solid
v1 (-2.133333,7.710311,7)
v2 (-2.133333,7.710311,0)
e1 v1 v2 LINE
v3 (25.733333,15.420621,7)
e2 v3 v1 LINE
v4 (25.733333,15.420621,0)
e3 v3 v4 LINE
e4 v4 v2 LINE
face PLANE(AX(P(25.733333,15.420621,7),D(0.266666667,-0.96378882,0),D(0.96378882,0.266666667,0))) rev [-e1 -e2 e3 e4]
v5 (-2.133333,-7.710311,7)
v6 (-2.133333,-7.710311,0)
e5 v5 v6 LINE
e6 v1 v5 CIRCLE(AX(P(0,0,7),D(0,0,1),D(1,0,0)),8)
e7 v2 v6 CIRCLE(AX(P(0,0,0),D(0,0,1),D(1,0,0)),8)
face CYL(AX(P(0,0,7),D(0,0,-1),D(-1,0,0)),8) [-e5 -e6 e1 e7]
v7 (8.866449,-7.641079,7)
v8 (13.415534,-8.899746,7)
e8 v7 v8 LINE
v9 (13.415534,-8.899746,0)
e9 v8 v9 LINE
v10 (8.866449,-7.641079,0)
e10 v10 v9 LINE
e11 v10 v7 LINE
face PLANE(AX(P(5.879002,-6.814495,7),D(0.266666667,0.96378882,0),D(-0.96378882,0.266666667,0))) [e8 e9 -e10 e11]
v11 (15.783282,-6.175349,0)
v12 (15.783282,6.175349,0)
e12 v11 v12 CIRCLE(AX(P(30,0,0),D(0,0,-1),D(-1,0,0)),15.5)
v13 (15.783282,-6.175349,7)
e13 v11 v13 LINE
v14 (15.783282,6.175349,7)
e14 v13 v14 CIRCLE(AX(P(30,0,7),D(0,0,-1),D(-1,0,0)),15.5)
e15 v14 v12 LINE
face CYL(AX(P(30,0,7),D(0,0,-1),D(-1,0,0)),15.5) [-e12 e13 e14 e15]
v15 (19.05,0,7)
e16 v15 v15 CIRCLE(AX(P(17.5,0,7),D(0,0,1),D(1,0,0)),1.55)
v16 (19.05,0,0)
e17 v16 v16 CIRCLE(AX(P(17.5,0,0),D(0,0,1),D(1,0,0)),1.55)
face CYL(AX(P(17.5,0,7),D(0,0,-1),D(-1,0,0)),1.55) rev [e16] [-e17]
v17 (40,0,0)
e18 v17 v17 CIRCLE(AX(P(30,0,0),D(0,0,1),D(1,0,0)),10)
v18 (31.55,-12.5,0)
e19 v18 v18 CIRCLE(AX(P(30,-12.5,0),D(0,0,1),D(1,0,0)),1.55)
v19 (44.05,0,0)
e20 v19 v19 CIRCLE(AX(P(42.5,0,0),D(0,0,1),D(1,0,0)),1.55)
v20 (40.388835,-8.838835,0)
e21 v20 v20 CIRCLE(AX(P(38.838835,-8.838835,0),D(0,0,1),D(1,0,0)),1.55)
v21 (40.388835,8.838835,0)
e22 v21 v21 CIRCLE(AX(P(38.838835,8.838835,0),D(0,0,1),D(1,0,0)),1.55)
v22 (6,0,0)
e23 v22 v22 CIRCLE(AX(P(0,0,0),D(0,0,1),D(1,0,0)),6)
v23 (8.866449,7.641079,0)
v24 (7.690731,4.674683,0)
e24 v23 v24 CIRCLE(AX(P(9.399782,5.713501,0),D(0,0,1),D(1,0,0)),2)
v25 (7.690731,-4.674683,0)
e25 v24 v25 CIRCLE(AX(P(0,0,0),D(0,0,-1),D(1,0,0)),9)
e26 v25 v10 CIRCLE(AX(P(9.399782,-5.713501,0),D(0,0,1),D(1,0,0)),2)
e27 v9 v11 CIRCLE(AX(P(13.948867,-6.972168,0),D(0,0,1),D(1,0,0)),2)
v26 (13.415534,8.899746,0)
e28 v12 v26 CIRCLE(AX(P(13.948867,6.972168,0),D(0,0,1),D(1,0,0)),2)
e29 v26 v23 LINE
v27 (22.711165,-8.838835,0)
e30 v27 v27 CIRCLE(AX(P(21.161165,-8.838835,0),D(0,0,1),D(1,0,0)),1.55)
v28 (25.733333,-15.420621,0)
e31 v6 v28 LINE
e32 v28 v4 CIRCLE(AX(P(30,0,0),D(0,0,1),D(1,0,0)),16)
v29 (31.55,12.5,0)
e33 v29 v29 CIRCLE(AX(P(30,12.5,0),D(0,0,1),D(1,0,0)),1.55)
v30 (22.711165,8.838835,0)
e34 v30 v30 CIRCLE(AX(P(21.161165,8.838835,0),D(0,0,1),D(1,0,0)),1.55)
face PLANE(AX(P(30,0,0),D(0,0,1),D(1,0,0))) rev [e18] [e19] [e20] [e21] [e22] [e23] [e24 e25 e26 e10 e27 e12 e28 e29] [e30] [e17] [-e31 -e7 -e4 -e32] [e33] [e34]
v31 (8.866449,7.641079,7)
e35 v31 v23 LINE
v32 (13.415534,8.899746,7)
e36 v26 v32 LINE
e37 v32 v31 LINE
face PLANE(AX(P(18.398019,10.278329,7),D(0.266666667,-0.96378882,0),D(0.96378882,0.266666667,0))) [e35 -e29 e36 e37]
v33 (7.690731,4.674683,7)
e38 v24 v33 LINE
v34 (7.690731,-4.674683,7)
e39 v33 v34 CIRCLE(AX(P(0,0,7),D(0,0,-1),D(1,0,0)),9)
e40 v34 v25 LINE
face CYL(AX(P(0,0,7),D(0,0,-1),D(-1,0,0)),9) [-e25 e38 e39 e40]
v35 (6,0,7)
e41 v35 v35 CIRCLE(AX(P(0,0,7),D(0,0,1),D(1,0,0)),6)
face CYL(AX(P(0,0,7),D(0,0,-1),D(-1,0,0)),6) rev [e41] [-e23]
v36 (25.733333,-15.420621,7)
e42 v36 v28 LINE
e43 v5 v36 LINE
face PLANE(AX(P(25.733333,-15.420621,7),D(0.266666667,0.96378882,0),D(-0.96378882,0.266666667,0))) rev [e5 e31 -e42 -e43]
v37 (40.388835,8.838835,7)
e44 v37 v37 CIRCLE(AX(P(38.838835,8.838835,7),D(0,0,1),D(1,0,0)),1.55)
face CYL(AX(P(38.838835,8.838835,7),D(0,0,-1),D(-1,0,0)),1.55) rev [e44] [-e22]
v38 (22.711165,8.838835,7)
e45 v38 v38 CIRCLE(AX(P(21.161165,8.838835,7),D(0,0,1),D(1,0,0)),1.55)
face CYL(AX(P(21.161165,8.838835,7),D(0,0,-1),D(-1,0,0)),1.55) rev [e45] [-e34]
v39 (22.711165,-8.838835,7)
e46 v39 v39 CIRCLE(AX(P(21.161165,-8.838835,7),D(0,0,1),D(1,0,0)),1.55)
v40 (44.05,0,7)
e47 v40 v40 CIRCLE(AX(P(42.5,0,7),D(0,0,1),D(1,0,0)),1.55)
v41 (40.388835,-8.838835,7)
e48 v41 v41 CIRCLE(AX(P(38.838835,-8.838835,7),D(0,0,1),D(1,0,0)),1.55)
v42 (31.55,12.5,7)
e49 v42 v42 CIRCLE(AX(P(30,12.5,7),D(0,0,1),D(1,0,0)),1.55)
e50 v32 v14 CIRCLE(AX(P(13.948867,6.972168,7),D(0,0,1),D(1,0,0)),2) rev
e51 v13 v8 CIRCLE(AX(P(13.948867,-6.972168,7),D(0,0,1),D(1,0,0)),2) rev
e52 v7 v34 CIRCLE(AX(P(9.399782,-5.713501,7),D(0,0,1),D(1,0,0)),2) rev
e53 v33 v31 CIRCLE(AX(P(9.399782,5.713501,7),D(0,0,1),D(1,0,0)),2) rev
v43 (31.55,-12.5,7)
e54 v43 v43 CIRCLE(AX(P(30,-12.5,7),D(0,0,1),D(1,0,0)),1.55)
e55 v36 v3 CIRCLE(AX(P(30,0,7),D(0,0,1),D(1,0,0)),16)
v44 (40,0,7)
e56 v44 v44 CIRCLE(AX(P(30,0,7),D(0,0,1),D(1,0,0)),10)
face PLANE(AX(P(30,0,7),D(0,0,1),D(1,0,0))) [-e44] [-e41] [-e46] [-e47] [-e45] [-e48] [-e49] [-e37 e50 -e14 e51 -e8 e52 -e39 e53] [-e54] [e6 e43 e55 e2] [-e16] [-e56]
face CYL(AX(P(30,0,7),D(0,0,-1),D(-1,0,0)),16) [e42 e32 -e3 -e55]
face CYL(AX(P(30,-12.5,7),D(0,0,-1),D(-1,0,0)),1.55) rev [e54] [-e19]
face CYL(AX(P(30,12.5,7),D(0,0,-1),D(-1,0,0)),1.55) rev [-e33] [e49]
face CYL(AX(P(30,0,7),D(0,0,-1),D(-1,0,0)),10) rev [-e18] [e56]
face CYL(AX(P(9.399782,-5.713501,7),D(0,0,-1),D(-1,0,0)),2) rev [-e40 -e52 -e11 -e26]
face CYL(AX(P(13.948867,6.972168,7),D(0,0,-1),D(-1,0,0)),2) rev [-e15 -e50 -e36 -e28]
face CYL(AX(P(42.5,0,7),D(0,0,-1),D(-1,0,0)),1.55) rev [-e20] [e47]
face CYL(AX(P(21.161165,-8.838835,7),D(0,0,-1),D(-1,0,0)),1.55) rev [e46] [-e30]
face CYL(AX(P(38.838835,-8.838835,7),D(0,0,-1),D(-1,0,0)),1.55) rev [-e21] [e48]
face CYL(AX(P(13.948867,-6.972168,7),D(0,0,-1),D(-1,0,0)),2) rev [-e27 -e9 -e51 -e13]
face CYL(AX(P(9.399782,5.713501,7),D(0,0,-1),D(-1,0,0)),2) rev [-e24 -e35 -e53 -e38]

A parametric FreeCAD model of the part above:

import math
import FreeCAD as App
import Part
import Sketcher
from FreeCAD import Vector


def edges_at(feature, points):
    """Names of the edges that pass closest to the given points."""
    edges = feature.Shape.Edges
    near = lambda p: min(range(len(edges)), key=lambda i: edges[i].distToShape(Part.Vertex(*p))[0])
    return sorted({f"Edge{near(p) + 1}" for p in points})

doc = App.newDocument("Part")
body = doc.addObject("PartDesign::Body", "Body")

# Sketch on XY plane
sketch1 = doc.addObject("Sketcher::SketchObject", "Sketch")
body.addObject(sketch1)
sketch1.AttachmentSupport = (doc.XY_Plane, [""])
sketch1.MapMode = "FlatFace"
sketch1.addGeometry(Part.LineSegment(Vector(-2.133333, -7.710311, 0), Vector(25.733333, -15.420621, 0)), False)
sketch1.addGeometry(Part.ArcOfCircle(Part.Circle(Vector(30, 0, 0), Vector(0, 0, 1), 16), math.radians(-105.46601), math.radians(105.46601)), False)
sketch1.addGeometry(Part.LineSegment(Vector(25.733333, 15.420621, 0), Vector(-2.133333, 7.710311, 0)), False)
sketch1.addGeometry(Part.ArcOfCircle(Part.Circle(Vector(0, 0, 0), Vector(0, 0, 1), 8), math.radians(105.46601), math.radians(254.53399)), False)
sketch1.addGeometry(Part.Circle(Vector(38.838835, -8.838835, 0), Vector(0, 0, 1), 1.55), False)
sketch1.addGeometry(Part.Circle(Vector(30, -12.5, 0), Vector(0, 0, 1), 1.55), False)
sketch1.addGeometry(Part.Circle(Vector(21.161165, -8.838835, 0), Vector(0, 0, 1), 1.55), False)
sketch1.addGeometry(Part.Circle(Vector(42.5, 0, 0), Vector(0, 0, 1), 1.55), False)
sketch1.addGeometry(Part.Circle(Vector(30, 0, 0), Vector(0, 0, 1), 10), False)
sketch1.addGeometry(Part.Circle(Vector(38.838835, 8.838835, 0), Vector(0, 0, 1), 1.55), False)
sketch1.addGeometry(Part.Circle(Vector(21.161165, 8.838835, 0), Vector(0, 0, 1), 1.55), False)
sketch1.addGeometry(Part.Circle(Vector(30, 12.5, 0), Vector(0, 0, 1), 1.55), False)
sketch1.addGeometry(Part.Circle(Vector(17.5, 0, 0), Vector(0, 0, 1), 1.55), False)
sketch1.addGeometry(Part.ArcOfCircle(Part.Circle(Vector(0, 0, 0), Vector(0, 0, 1), 9), math.radians(-49.214999), math.radians(49.214999)), False)
sketch1.addGeometry(Part.LineSegment(Vector(5.879002, 6.814495, 0), Vector(18.398019, 10.278329, 0)), False)
sketch1.addGeometry(Part.ArcOfCircle(Part.Circle(Vector(30, 0, 0), Vector(0, 0, 1), 15.5), math.radians(138.461895), math.radians(221.538105)), False)
sketch1.addGeometry(Part.LineSegment(Vector(18.398019, -10.278329, 0), Vector(5.879002, -6.814495, 0)), False)
sketch1.addGeometry(Part.Circle(Vector(0, 0, 0), Vector(0, 0, 1), 6), False)
sketch1.addConstraint(Sketcher.Constraint("Tangent", 0, 2, 1, 1))
sketch1.addConstraint(Sketcher.Constraint("Tangent", 1, 2, 2, 1))
sketch1.addConstraint(Sketcher.Constraint("Tangent", 2, 2, 3, 1))
sketch1.addConstraint(Sketcher.Constraint("Tangent", 3, 2, 0, 1))
sketch1.addConstraint(Sketcher.Constraint("Coincident", 13, 2, 14, 1))
sketch1.addConstraint(Sketcher.Constraint("Coincident", 14, 2, 15, 1))
sketch1.addConstraint(Sketcher.Constraint("Coincident", 15, 2, 16, 1))
sketch1.addConstraint(Sketcher.Constraint("Coincident", 16, 2, 13, 1))
sketch1.addConstraint(Sketcher.Constraint("Coincident", 3, 3, -1, 1))
sketch1.addConstraint(Sketcher.Constraint("Coincident", 13, 3, -1, 1))
sketch1.addConstraint(Sketcher.Constraint("Coincident", 17, 3, -1, 1))
sketch1.addConstraint(Sketcher.Constraint("Coincident", 8, 3, 1, 3))
sketch1.addConstraint(Sketcher.Constraint("Coincident", 15, 3, 1, 3))
sketch1.addConstraint(Sketcher.Constraint("Equal", 4, 5))
sketch1.addConstraint(Sketcher.Constraint("Equal", 5, 6))
sketch1.addConstraint(Sketcher.Constraint("Equal", 6, 7))
sketch1.addConstraint(Sketcher.Constraint("Equal", 7, 9))
sketch1.addConstraint(Sketcher.Constraint("Equal", 9, 10))
sketch1.addConstraint(Sketcher.Constraint("Equal", 10, 11))
sketch1.addConstraint(Sketcher.Constraint("Equal", 11, 12))
sketch1.addConstraint(Sketcher.Constraint("Symmetric", 4, 3, 9, 3, -1))
sketch1.addConstraint(Sketcher.Constraint("Symmetric", 6, 3, 10, 3, -1))
sketch1.addConstraint(Sketcher.Constraint("Symmetric", 5, 3, 11, 3, -1))
sketch1.addConstraint(Sketcher.Constraint("Symmetric", 14, 2, 15, 2, -1))
sketch1.addConstraint(Sketcher.Constraint("PointOnObject", 7, 3, -1))
sketch1.addConstraint(Sketcher.Constraint("PointOnObject", 12, 3, -1))
sketch1.addConstraint(Sketcher.Constraint("Parallel", 2, 14))
sketch1.addConstraint(Sketcher.Constraint("Parallel", 0, 16))
sketch1.addConstraint(Sketcher.Constraint("Horizontal", 4, 3, 6, 3))
sketch1.addConstraint(Sketcher.Constraint("Vertical", 1, 3, 5, 3))
sketch1.addConstraint(Sketcher.Constraint("Diameter", 8, 20.0))
sketch1.addConstraint(Sketcher.Constraint("Diameter", 17, 12.0))
sketch1.addConstraint(Sketcher.Constraint("Radius", 1, 16.0))
sketch1.addConstraint(Sketcher.Constraint("Radius", 3, 8.0))
sketch1.addConstraint(Sketcher.Constraint("Radius", 13, 9.0))
sketch1.addConstraint(Sketcher.Constraint("Diameter", 4, 3.1))
sketch1.addConstraint(Sketcher.Constraint("Radius", 15, 15.5))
sketch1.addConstraint(Sketcher.Constraint("DistanceX", -1, 1, 1, 3, 30.0))
sketch1.addConstraint(Sketcher.Constraint("DistanceY", 5, 3, -1, 1, 12.5))
sketch1.addConstraint(Sketcher.Constraint("DistanceX", -1, 1, 7, 3, 42.5))
sketch1.addConstraint(Sketcher.Constraint("DistanceX", -1, 1, 12, 3, 17.5))
sketch1.addConstraint(Sketcher.Constraint("DistanceX", -1, 1, 13, 2, 5.879002))
sketch1.addConstraint(Sketcher.Constraint("DistanceX", 0, 2, 4, 3, 13.105501))
sketch1.addConstraint(Sketcher.Constraint("DistanceX", 2, 2, 10, 3, 23.294499))
sketch1.addConstraint(Sketcher.Constraint("DistanceY", 4, 3, 9, 3, 17.67767))
pad1 = doc.addObject("PartDesign::Pad", "Pad")
body.addObject(pad1)
pad1.Profile = sketch1
pad1.Length = 7
doc.recompute()

fillet = doc.addObject("PartDesign::Fillet", "Fillet")
body.addObject(fillet)
fillet.Base = (pad1, edges_at(pad1, [
    (5.879, 6.814, 3.5),
    (5.879, -6.814, 3.5),
    (18.398, -10.278, 3.5),
    (18.398, 10.278, 3.5),
]))
fillet.Radius = 2

doc.recompute()
